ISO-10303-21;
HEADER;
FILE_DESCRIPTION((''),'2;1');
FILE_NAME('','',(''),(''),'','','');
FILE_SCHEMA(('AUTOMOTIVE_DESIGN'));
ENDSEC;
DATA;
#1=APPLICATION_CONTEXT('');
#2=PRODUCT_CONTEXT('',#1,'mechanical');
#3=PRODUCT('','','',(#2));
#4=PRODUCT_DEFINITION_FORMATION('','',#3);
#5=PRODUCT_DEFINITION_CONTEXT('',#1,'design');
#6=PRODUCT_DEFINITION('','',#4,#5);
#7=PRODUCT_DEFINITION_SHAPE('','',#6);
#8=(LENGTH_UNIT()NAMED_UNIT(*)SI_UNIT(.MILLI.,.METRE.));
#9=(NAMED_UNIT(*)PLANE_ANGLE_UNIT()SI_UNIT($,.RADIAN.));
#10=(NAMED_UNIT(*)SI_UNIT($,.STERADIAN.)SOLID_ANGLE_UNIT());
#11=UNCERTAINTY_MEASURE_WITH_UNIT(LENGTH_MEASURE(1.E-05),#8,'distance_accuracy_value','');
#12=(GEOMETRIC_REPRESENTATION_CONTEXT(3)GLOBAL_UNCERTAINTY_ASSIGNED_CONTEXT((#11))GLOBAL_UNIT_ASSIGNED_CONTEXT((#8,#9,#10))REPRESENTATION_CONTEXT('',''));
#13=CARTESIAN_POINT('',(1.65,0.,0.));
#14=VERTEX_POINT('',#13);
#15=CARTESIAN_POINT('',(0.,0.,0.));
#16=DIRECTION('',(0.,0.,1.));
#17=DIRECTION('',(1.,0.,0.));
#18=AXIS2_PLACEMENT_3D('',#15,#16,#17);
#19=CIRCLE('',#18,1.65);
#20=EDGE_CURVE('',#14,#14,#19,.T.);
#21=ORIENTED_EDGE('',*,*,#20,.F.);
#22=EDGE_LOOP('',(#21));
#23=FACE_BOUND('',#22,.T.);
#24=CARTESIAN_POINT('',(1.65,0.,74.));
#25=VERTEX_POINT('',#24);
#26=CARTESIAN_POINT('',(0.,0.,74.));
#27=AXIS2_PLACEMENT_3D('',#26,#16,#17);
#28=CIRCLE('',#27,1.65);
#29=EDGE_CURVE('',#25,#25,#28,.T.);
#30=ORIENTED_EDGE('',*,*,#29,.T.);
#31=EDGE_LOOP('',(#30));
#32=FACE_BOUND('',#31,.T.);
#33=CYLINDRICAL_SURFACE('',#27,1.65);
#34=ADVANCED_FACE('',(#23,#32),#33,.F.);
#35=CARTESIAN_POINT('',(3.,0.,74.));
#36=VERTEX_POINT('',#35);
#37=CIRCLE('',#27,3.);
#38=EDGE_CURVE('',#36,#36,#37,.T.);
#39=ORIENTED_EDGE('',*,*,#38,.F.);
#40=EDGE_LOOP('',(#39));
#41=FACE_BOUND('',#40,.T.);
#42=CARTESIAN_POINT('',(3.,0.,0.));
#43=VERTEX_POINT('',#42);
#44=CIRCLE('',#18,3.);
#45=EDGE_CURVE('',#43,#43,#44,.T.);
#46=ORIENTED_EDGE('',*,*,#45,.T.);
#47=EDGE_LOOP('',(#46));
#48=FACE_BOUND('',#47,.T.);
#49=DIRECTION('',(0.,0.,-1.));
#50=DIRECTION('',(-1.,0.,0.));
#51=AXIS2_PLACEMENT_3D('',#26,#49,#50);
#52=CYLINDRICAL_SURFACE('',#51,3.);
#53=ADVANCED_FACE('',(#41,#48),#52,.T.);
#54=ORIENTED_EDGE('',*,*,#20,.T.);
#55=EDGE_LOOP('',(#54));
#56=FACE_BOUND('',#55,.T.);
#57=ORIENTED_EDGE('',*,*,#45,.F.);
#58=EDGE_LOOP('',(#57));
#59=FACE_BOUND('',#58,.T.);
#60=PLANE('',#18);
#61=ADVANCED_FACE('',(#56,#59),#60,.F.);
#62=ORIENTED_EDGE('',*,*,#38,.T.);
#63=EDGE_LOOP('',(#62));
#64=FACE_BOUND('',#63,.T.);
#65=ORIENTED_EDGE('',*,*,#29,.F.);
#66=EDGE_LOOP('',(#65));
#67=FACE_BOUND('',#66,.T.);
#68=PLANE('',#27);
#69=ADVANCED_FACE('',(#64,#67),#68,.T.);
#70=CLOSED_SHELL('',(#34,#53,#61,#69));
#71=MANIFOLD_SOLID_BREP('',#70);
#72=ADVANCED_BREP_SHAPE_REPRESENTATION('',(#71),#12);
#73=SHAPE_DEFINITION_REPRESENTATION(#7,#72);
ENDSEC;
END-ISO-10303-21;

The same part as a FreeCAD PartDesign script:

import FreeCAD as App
import Part
import Sketcher
from FreeCAD import Vector
Q = App.Units.Quantity

doc = App.newDocument("Part")
body = doc.addObject("PartDesign::Body", "Body")

# Sketch on XY plane
sketch1 = body.newObject("Sketcher::SketchObject", "Sketch")
sketch1.AttachmentSupport = (doc.getObject("XY_Plane"), [""])
sketch1.MapMode = "FlatFace"
sketch1.addGeometry(Part.Circle(Vector(0, 0, 0), Vector(0, 0, 1), 3), False)
sketch1.addConstraint([
    Sketcher.Constraint("Coincident", 0, 3, -1, 1),
    Sketcher.Constraint("Diameter", 0, Q("6 mm")),
])
pad1 = body.newObject("PartDesign::Pad", "Pad")
pad1.Profile = sketch1
pad1.Length = 74

# Sketch on XY plane
sketch2 = body.newObject("Sketcher::SketchObject", "Sketch001")
sketch2.AttachmentSupport = (doc.getObject("XY_Plane"), [""])
sketch2.MapMode = "FlatFace"
sketch2.AttachmentOffset = App.Placement(Vector(0, 0, 74), App.Rotation())
sketch2.addGeometry(Part.Circle(Vector(0, 0, 0), Vector(0, 0, 1), 1.6), False)
sketch2.addConstraint([
    Sketcher.Constraint("Coincident", 0, 3, -1, 1),
    Sketcher.Constraint("Diameter", 0, Q("3.3 mm")),
])
doc.recompute()
hole = body.newObject("PartDesign::Hole", "Hole")
hole.Profile = sketch2
hole.ThreadType = "None"
hole.Diameter = 3.3
hole.DepthType = "ThroughAll"

doc.recompute()
